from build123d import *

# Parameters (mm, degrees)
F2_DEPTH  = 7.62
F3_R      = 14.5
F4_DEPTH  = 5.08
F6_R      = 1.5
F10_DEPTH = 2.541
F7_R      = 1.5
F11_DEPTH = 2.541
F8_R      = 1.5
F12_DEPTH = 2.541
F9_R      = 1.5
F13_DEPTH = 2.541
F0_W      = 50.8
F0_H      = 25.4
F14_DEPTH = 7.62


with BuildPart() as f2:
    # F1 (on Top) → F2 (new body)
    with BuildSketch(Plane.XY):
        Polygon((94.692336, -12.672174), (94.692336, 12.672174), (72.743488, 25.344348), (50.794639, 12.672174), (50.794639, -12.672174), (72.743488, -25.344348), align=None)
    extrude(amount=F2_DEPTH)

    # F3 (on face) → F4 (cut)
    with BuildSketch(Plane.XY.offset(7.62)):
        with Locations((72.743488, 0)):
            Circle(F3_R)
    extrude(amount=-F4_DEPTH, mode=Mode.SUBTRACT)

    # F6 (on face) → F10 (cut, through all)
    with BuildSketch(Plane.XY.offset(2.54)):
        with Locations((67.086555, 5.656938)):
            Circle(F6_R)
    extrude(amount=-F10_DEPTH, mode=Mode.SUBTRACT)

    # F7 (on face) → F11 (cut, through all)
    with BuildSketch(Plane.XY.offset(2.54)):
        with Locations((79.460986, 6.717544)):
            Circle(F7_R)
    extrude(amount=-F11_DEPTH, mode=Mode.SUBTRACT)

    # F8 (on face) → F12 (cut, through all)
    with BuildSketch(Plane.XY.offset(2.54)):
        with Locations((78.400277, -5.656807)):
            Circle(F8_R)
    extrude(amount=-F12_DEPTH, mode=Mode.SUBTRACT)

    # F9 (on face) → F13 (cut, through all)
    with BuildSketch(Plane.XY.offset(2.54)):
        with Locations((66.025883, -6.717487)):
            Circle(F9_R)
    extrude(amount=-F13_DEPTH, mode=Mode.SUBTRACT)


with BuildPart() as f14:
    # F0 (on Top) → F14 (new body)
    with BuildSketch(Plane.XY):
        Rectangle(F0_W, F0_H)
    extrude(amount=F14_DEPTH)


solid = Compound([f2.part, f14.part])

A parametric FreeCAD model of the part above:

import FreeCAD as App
import Part
import Sketcher
Q = App.Units.Quantity


def add_polygon(sketch, points):
    """Adds a closed chain of lines whose ends are joined by coincident constraints."""
    first, n = sketch.GeometryCount, len(points)
    for a, b in zip(points, points[1:] + points[:1]):
        sketch.addGeometry(Part.LineSegment(App.Vector(*a, 0), App.Vector(*b, 0)), False)
    for i in range(n):
        sketch.addConstraint(Sketcher.Constraint("Coincident", first + i, 2, first + (i + 1) % n, 1))

doc = App.newDocument("Part")
body = doc.addObject("PartDesign::Body", "Body")

sketch1 = body.newObject("Sketcher::SketchObject", "Sketch")
sketch1.AttachmentSupport = (doc.getObject("XY_Plane"), [""])
sketch1.MapMode = "FlatFace"
add_polygon(sketch1, [(95, -13), (95, 13), (73, 25), (51, 13), (51, -13), (73, -25)])
sketch1.addConstraint([
    Sketcher.Constraint("Vertical", 0),
    Sketcher.Constraint("Vertical", 3),
    Sketcher.Constraint("Symmetric", 1, 2, 4, 2, -1),
    Sketcher.Constraint("Parallel", 1, 4),
    Sketcher.Constraint("Parallel", 2, 5),
    Sketcher.Constraint("Horizontal", 0, 2, 2, 2),
    Sketcher.Constraint("Horizontal", 3, 2, 5, 2),
    Sketcher.Constraint("Angle", 1, Q("149.999999 deg")),
    Sketcher.Constraint("DistanceY", 0, 1, 0, 2, 25.344348),
    Sketcher.Constraint("DistanceX", -1, 1, 1, 2, 72.743488),
    Sketcher.Constraint("DistanceY", -1, 1, 1, 2, 25.344348),
])
pad1 = body.newObject("PartDesign::Pad", "Pad")
pad1.Profile = sketch1
pad1.Length = Q("0.3 in")

sketch2 = body.newObject("Sketcher::SketchObject", "Sketch001")
sketch2.AttachmentSupport = (doc.getObject("XY_Plane"), [""])
sketch2.MapMode = "FlatFace"
sketch2.AttachmentOffset = App.Placement(App.Vector(0, 0, 0.3 * 25.4), App.Rotation())
sketch2.addGeometry(Part.Circle(App.Vector(73, 0, 0), App.Vector(0, 0, 1), 14), False)
sketch2.addConstraint([
    Sketcher.Constraint("PointOnObject", 0, 3, -1),
    Sketcher.Constraint("Diameter", 0, 29.0),
    Sketcher.Constraint("DistanceX", -1, 1, 0, 3, 72.743488),
])
pocket1 = body.newObject("PartDesign::Pocket", "Pocket")
pocket1.Profile = sketch2
pocket1.Length = Q("0.2 in")

sketch3 = body.newObject("Sketcher::SketchObject", "Sketch002")
sketch3.AttachmentSupport = (doc.getObject("XY_Plane"), [""])
sketch3.MapMode = "FlatFace"
sketch3.AttachmentOffset = App.Placement(App.Vector(0, 0, 0.1 * 25.4), App.Rotation())
sketch3.addGeometry(Part.Circle(App.Vector(67.1, 5.7, 0), App.Vector(0, 0, 1), 1.5), False)
sketch3.addConstraint([
    Sketcher.Constraint("Diameter", 0, 3.0),
    Sketcher.Constraint("DistanceY", -1, 1, 0, 3, 5.656938),
    Sketcher.Constraint("DistanceX", -1, 1, 0, 3, 67.086555),
])
pocket2 = body.newObject("PartDesign::Pocket", "Pocket001")
pocket2.Profile = sketch3
pocket2.Type = "ThroughAll"

sketch4 = body.newObject("Sketcher::SketchObject", "Sketch003")
sketch4.AttachmentSupport = (doc.getObject("XY_Plane"), [""])
sketch4.MapMode = "FlatFace"
sketch4.AttachmentOffset = App.Placement(App.Vector(0, 0, 0.1 * 25.4), App.Rotation())
sketch4.addGeometry(Part.Circle(App.Vector(79.5, 6.7, 0), App.Vector(0, 0, 1), 1.5), False)
sketch4.addConstraint([
    Sketcher.Constraint("Diameter", 0, 3.0),
    Sketcher.Constraint("DistanceX", -1, 1, 0, 3, 79.460986),
    Sketcher.Constraint("DistanceY", -1, 1, 0, 3, 6.717544),
])
pocket3 = body.newObject("PartDesign::Pocket", "Pocket002")
pocket3.Profile = sketch4
pocket3.Type = "ThroughAll"

sketch5 = body.newObject("Sketcher::SketchObject", "Sketch004")
sketch5.AttachmentSupport = (doc.getObject("XY_Plane"), [""])
sketch5.MapMode = "FlatFace"
sketch5.AttachmentOffset = App.Placement(App.Vector(0, 0, 0.1 * 25.4), App.Rotation())
sketch5.addGeometry(Part.Circle(App.Vector(78.4, -5.7, 0), App.Vector(0, 0, 1), 1.5), False)
sketch5.addConstraint([
    Sketcher.Constraint("Diameter", 0, 3.0),
    Sketcher.Constraint("DistanceX", -1, 1, 0, 3, 78.400277),
    Sketcher.Constraint("DistanceY", 0, 3, -1, 1, 5.656807),
])
pocket4 = body.newObject("PartDesign::Pocket", "Pocket003")
pocket4.Profile = sketch5
pocket4.Type = "ThroughAll"

sketch6 = body.newObject("Sketcher::SketchObject", "Sketch005")
sketch6.AttachmentSupport = (doc.getObject("XY_Plane"), [""])
sketch6.MapMode = "FlatFace"
sketch6.AttachmentOffset = App.Placement(App.Vector(0, 0, 0.1 * 25.4), App.Rotation())
sketch6.addGeometry(Part.Circle(App.Vector(66, -6.7, 0), App.Vector(0, 0, 1), 1.5), False)
sketch6.addConstraint([
    Sketcher.Constraint("Diameter", 0, 3.0),
    Sketcher.Constraint("DistanceX", -1, 1, 0, 3, 66.025883),
    Sketcher.Constraint("DistanceY", 0, 3, -1, 1, 6.717487),
])
pocket5 = body.newObject("PartDesign::Pocket", "Pocket004")
pocket5.Profile = sketch6
pocket5.Type = "ThroughAll"
body2 = doc.addObject("PartDesign::Body", "Body001")

sketch7 = body2.newObject("Sketcher::SketchObject", "Sketch006")
sketch7.AttachmentSupport = (doc.getObject("XY_Plane001"), [""])
sketch7.MapMode = "FlatFace"
add_polygon(sketch7, [(-25, 13), (-25, -13), (25, -13), (25, 13)])
sketch7.addConstraint([
    Sketcher.Constraint("Vertical", 0),
    Sketcher.Constraint("Horizontal", 1),
    Sketcher.Constraint("Vertical", 2),
    Sketcher.Constraint("Horizontal", 3),
    Sketcher.Constraint("Symmetric", 0, 2, 2, 2, -1, 1),
    Sketcher.Constraint("DistanceX", 1, 1, 1, 2, Q("2 in")),
    Sketcher.Constraint("DistanceY", 0, 2, 0, 1, Q("1 in")),
])
pad2 = body2.newObject("PartDesign::Pad", "Pad001")
pad2.Profile = sketch7
pad2.Length = Q("0.3 in")

doc.recompute()
